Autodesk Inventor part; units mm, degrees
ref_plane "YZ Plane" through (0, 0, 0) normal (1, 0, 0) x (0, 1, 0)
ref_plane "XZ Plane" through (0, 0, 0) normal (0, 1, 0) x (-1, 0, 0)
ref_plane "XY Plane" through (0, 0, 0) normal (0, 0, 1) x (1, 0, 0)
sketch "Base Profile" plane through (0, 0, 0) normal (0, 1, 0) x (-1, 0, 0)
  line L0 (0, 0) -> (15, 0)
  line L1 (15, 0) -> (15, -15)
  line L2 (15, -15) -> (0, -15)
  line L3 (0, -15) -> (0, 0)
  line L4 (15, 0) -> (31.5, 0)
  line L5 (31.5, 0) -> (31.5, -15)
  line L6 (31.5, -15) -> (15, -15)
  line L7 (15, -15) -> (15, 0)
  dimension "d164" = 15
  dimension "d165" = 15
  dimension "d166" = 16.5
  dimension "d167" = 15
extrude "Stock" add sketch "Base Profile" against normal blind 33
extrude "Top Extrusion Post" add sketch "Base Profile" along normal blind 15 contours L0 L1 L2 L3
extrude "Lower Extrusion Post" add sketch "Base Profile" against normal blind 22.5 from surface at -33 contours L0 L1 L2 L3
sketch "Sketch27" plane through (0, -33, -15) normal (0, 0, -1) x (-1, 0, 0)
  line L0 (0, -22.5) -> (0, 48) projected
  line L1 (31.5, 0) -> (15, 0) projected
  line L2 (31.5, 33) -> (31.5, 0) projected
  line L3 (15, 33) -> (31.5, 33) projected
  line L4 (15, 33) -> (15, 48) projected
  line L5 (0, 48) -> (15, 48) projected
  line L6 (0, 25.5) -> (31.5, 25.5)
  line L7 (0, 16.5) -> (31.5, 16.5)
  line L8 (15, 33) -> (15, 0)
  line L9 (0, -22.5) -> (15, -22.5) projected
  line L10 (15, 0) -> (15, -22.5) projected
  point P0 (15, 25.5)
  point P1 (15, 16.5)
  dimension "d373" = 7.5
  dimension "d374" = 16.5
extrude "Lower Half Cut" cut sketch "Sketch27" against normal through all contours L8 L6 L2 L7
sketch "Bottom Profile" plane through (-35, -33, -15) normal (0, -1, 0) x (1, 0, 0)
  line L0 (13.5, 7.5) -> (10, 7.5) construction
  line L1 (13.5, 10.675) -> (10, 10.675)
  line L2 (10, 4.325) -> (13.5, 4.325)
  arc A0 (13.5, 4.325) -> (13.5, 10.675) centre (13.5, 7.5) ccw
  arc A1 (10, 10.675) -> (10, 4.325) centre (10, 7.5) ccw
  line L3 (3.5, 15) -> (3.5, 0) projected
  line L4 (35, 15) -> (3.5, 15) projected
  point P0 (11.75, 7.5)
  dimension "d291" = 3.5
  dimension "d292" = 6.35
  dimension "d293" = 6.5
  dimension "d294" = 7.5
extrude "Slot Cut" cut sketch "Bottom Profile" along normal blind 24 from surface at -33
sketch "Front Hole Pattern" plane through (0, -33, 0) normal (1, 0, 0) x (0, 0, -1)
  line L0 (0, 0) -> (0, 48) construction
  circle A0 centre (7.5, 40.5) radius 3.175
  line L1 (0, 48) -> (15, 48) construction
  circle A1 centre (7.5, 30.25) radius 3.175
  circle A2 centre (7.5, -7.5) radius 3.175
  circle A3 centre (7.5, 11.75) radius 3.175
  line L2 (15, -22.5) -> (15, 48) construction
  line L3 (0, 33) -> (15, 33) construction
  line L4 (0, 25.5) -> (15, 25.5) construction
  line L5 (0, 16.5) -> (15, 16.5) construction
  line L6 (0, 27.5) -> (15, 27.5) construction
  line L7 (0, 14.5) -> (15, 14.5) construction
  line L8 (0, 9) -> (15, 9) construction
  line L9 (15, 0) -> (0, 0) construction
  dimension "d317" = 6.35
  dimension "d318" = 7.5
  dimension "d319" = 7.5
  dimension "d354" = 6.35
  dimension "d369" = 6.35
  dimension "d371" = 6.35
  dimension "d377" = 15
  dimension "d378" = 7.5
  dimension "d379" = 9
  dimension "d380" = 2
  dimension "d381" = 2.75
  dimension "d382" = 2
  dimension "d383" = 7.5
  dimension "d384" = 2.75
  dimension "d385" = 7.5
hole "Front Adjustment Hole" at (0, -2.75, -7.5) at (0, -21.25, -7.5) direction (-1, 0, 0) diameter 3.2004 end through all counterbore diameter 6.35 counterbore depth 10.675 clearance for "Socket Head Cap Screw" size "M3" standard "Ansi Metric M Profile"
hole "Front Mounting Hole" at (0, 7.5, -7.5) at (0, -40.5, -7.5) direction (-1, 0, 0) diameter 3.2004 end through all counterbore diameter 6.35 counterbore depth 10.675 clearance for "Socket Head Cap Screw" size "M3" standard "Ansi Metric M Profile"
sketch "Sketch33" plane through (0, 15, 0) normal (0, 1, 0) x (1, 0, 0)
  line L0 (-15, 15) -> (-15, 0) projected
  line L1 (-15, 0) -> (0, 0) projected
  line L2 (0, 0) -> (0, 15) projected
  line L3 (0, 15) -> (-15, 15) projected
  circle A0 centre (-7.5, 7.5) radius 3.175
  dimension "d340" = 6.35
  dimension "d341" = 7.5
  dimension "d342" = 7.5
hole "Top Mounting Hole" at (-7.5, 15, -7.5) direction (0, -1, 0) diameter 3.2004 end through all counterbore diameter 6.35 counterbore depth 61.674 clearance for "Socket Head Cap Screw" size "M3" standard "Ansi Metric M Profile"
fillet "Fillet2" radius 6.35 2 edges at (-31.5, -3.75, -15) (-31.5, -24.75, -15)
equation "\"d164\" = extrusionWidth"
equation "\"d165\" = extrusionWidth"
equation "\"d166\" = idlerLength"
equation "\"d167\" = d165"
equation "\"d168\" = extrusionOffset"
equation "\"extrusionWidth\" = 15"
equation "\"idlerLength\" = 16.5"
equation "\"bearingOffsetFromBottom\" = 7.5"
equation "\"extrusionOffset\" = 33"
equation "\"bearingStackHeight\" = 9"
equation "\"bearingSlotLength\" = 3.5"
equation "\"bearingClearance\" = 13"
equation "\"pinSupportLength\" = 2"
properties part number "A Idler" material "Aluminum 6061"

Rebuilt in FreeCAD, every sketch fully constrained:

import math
import FreeCAD as App
import Part
import Sketcher
from FreeCAD import Vector


def edges_at(feature, points):
    """Names of the edges that pass closest to the given points."""
    edges = feature.Shape.Edges
    near = lambda p: min(range(len(edges)), key=lambda i: edges[i].distToShape(Part.Vertex(*p))[0])
    return sorted({f"Edge{near(p) + 1}" for p in points})

doc = App.newDocument("Part")
body = doc.addObject("PartDesign::Body", "Body")

# Sketch on XZ plane
sketch1 = doc.addObject("Sketcher::SketchObject", "Sketch")
body.addObject(sketch1)
sketch1.AttachmentSupport = (doc.XZ_Plane, [""])
sketch1.MapMode = "FlatFace"
sketch1.addGeometry([
    Part.LineSegment(Vector(0, 0, 0), Vector(0, -15, 0)),
    Part.LineSegment(Vector(0, -15, 0), Vector(-32, -15, 0)),
    Part.LineSegment(Vector(-32, -15, 0), Vector(-32, 0, 0)),
    Part.LineSegment(Vector(-32, 0, 0), Vector(0, 0, 0)),
], False)
sketch1.addConstraint([
    Sketcher.Constraint("Coincident", 0, 2, 1, 1),
    Sketcher.Constraint("Coincident", 1, 2, 2, 1),
    Sketcher.Constraint("Coincident", 2, 2, 3, 1),
    Sketcher.Constraint("Coincident", 3, 2, 0, 1),
    Sketcher.Constraint("Vertical", 0),
    Sketcher.Constraint("Horizontal", 1),
    Sketcher.Constraint("Vertical", 2),
    Sketcher.Constraint("Horizontal", 3),
    Sketcher.Constraint("Coincident", 3, 2, -1, 1),
    Sketcher.Constraint("DistanceY", 0, 2, 0, 1, 15.0),
    Sketcher.Constraint("DistanceX", 1, 2, 1, 1, 31.5),
])
pad1 = doc.addObject("PartDesign::Pad", "Pad")
body.addObject(pad1)
pad1.Profile = sketch1
pad1.Length = 33

# Sketch on XZ plane
sketch2 = doc.addObject("Sketcher::SketchObject", "Sketch001")
body.addObject(sketch2)
sketch2.AttachmentSupport = (doc.XZ_Plane, [""])
sketch2.MapMode = "FlatFace"
sketch2.addGeometry([
    Part.LineSegment(Vector(-15, 0, 0), Vector(0, 0, 0)),
    Part.LineSegment(Vector(0, 0, 0), Vector(0, -15, 0)),
    Part.LineSegment(Vector(0, -15, 0), Vector(-15, -15, 0)),
    Part.LineSegment(Vector(-15, -15, 0), Vector(-15, 0, 0)),
], False)
sketch2.addConstraint([
    Sketcher.Constraint("Coincident", 0, 2, 1, 1),
    Sketcher.Constraint("Coincident", 1, 2, 2, 1),
    Sketcher.Constraint("Coincident", 2, 2, 3, 1),
    Sketcher.Constraint("Coincident", 3, 2, 0, 1),
    Sketcher.Constraint("Horizontal", 0),
    Sketcher.Constraint("Vertical", 1),
    Sketcher.Constraint("Horizontal", 2),
    Sketcher.Constraint("Vertical", 3),
    Sketcher.Constraint("Coincident", 0, 2, -1, 1),
    Sketcher.Constraint("Equal", 2, 1),
    Sketcher.Constraint("DistanceX", 0, 1, 0, 2, 15.0),
])
pad2 = doc.addObject("PartDesign::Pad", "Pad001")
body.addObject(pad2)
pad2.Profile = sketch2
pad2.Length = 15
pad2.Reversed = True

# Sketch on XZ plane
sketch3 = doc.addObject("Sketcher::SketchObject", "Sketch002")
body.addObject(sketch3)
sketch3.AttachmentSupport = (doc.XZ_Plane, [""])
sketch3.MapMode = "FlatFace"
sketch3.AttachmentOffset = App.Placement(Vector(0, 0, 33), App.Rotation())
sketch3.addGeometry([
    Part.LineSegment(Vector(-15, 0, 0), Vector(0, 0, 0)),
    Part.LineSegment(Vector(0, 0, 0), Vector(0, -15, 0)),
    Part.LineSegment(Vector(0, -15, 0), Vector(-15, -15, 0)),
    Part.LineSegment(Vector(-15, -15, 0), Vector(-15, 0, 0)),
], False)
sketch3.addConstraint([
    Sketcher.Constraint("Coincident", 0, 2, 1, 1),
    Sketcher.Constraint("Coincident", 1, 2, 2, 1),
    Sketcher.Constraint("Coincident", 2, 2, 3, 1),
    Sketcher.Constraint("Coincident", 3, 2, 0, 1),
    Sketcher.Constraint("Horizontal", 0),
    Sketcher.Constraint("Vertical", 1),
    Sketcher.Constraint("Horizontal", 2),
    Sketcher.Constraint("Vertical", 3),
    Sketcher.Constraint("Coincident", 0, 2, -1, 1),
    Sketcher.Constraint("Equal", 2, 1),
    Sketcher.Constraint("DistanceX", 0, 1, 0, 2, 15.0),
])
pad3 = doc.addObject("PartDesign::Pad", "Pad002")
body.addObject(pad3)
pad3.Profile = sketch3
pad3.Length = 22.5

# Sketch on XY plane
sketch4 = doc.addObject("Sketcher::SketchObject", "Sketch003")
body.addObject(sketch4)
sketch4.AttachmentSupport = (doc.XY_Plane, [""])
sketch4.MapMode = "FlatFace"
sketch4.AttachmentOffset = App.Placement(Vector(0, 0, -15), App.Rotation())
sketch4.addGeometry([
    Part.LineSegment(Vector(-15, -8, 0), Vector(-15, -16, 0)),
    Part.LineSegment(Vector(-15, -16, 0), Vector(-32, -16, 0)),
    Part.LineSegment(Vector(-32, -16, 0), Vector(-32, -8, 0)),
    Part.LineSegment(Vector(-32, -8, 0), Vector(-15, -8, 0)),
], False)
sketch4.addConstraint([
    Sketcher.Constraint("Coincident", 0, 2, 1, 1),
    Sketcher.Constraint("Coincident", 1, 2, 2, 1),
    Sketcher.Constraint("Coincident", 2, 2, 3, 1),
    Sketcher.Constraint("Coincident", 3, 2, 0, 1),
    Sketcher.Constraint("Vertical", 0),
    Sketcher.Constraint("Horizontal", 1),
    Sketcher.Constraint("Vertical", 2),
    Sketcher.Constraint("Horizontal", 3),
    Sketcher.Constraint("DistanceX", 1, 2, 1, 1, 16.5),
    Sketcher.Constraint("DistanceY", 0, 2, -1, 1, 16.5),
    Sketcher.Constraint("DistanceY", 2, 2, -1, 1, 7.5),
    Sketcher.Constraint("DistanceX", 0, 2, -1, 1, 15.0),
])
pocket1 = doc.addObject("PartDesign::Pocket", "Pocket")
body.addObject(pocket1)
pocket1.Profile = sketch4
pocket1.Type = "ThroughAll"
pocket1.Reversed = True

# Sketch on XZ plane
sketch5 = doc.addObject("Sketcher::SketchObject", "Sketch004")
body.addObject(sketch5)
sketch5.AttachmentSupport = (doc.XZ_Plane, [""])
sketch5.MapMode = "FlatFace"
sketch5.addGeometry([
    Part.ArcOfCircle(Part.Circle(Vector(-21.5, -7.5, 0), Vector(0, 0, 1), 3.2), math.radians(-90), math.radians(90)),
    Part.LineSegment(Vector(-21.5, -4.3, 0), Vector(-25, -4.3, 0)),
    Part.ArcOfCircle(Part.Circle(Vector(-25, -7.5, 0), Vector(0, 0, 1), 3.2), math.radians(90), math.radians(270)),
    Part.LineSegment(Vector(-25, -10.7, 0), Vector(-21.5, -10.7, 0)),
], False)
sketch5.addConstraint([
    Sketcher.Constraint("Tangent", 0, 2, 1, 1),
    Sketcher.Constraint("Tangent", 1, 2, 2, 1),
    Sketcher.Constraint("Tangent", 2, 2, 3, 1),
    Sketcher.Constraint("Tangent", 3, 2, 0, 1),
    Sketcher.Constraint("Horizontal", 1),
    Sketcher.Constraint("Horizontal", 3),
    Sketcher.Constraint("DistanceX", 1, 2, 1, 1, 3.5),
    Sketcher.Constraint("Radius", 0, 3.175),
    Sketcher.Constraint("DistanceY", 0, 3, -1, 1, 7.5),
    Sketcher.Constraint("DistanceX", 2, 3, -1, 1, 25.0),
])
pocket2 = doc.addObject("PartDesign::Pocket", "Pocket001")
body.addObject(pocket2)
pocket2.Profile = sketch5
pocket2.Length = 24
pocket2.Reversed = True

# Sketch on YZ plane
sketch6 = doc.addObject("Sketcher::SketchObject", "Sketch005")
body.addObject(sketch6)
sketch6.AttachmentSupport = (doc.YZ_Plane, [""])
sketch6.MapMode = "FlatFace"
sketch6.addGeometry([
    Part.Circle(Vector(-2.8, -7.5, 0), Vector(0, 0, 1), 1.6),
    Part.Circle(Vector(-21.2, -7.5, 0), Vector(0, 0, 1), 1.6),
], False)
sketch6.addConstraint([
    Sketcher.Constraint("Equal", 0, 1),
    Sketcher.Constraint("Horizontal", 0, 3, 1, 3),
    Sketcher.Constraint("Diameter", 0, 3.2004),
    Sketcher.Constraint("DistanceY", 0, 3, -1, 1, 7.5),
    Sketcher.Constraint("DistanceX", 1, 3, 0, 3, 18.5),
    Sketcher.Constraint("DistanceX", 0, 3, -1, 1, 2.75),
])
doc.recompute()
hole = doc.addObject("PartDesign::Hole", "Hole")
body.addObject(hole)
hole.Profile = sketch6
hole.ThreadType = "None"
hole.Diameter = 3.2004
hole.DepthType = "ThroughAll"
hole.HoleCutType = "Counterbore"
hole.HoleCutDiameter = 6.35
hole.HoleCutDepth = 10.675

# Sketch on YZ plane
sketch7 = doc.addObject("Sketcher::SketchObject", "Sketch006")
body.addObject(sketch7)
sketch7.AttachmentSupport = (doc.YZ_Plane, [""])
sketch7.MapMode = "FlatFace"
sketch7.addGeometry([
    Part.Circle(Vector(7.5, -7.5, 0), Vector(0, 0, 1), 1.6),
    Part.Circle(Vector(-40.5, -7.5, 0), Vector(0, 0, 1), 1.6),
], False)
sketch7.addConstraint([
    Sketcher.Constraint("Equal", 0, 1),
    Sketcher.Constraint("Horizontal", 0, 3, 1, 3),
    Sketcher.Constraint("DistanceX", 1, 3, 0, 3, 48.0),
    Sketcher.Constraint("Diameter", 0, 3.2004),
    Sketcher.Constraint("DistanceX", -1, 1, 0, 3, 7.5),
    Sketcher.Constraint("DistanceY", 0, 3, -1, 1, 7.5),
])
doc.recompute()
hole2 = doc.addObject("PartDesign::Hole", "Hole001")
body.addObject(hole2)
hole2.Profile = sketch7
hole2.ThreadType = "None"
hole2.Diameter = 3.2004
hole2.DepthType = "ThroughAll"
hole2.HoleCutType = "Counterbore"
hole2.HoleCutDiameter = 6.35
hole2.HoleCutDepth = 10.675

# Sketch on XZ plane
sketch8 = doc.addObject("Sketcher::SketchObject", "Sketch007")
body.addObject(sketch8)
sketch8.AttachmentSupport = (doc.XZ_Plane, [""])
sketch8.MapMode = "FlatFace"
sketch8.AttachmentOffset = App.Placement(Vector(0, 0, -15), App.Rotation())
sketch8.addGeometry(Part.Circle(Vector(-7.5, -7.5, 0), Vector(0, 0, 1), 1.6), False)
sketch8.addConstraint([
    Sketcher.Constraint("Diameter", 0, 3.2004),
    Sketcher.Constraint("DistanceX", 0, 3, -1, 1, 7.5),
    Sketcher.Constraint("DistanceY", 0, 3, -1, 1, 7.5),
])
doc.recompute()
hole3 = doc.addObject("PartDesign::Hole", "Hole002")
body.addObject(hole3)
hole3.Profile = sketch8
hole3.ThreadType = "None"
hole3.Diameter = 3.2004
hole3.DepthType = "ThroughAll"
hole3.HoleCutType = "Counterbore"
hole3.HoleCutDiameter = 6.35
hole3.HoleCutDepth = 61.674
hole3.Reversed = True
doc.recompute()

fillet = doc.addObject("PartDesign::Fillet", "Fillet")
body.addObject(fillet)
fillet.Base = (hole3, edges_at(hole3, [(-31.5, -3.75, -15), (-31.5, -24.75, -15)]))
fillet.Radius = 6.35

doc.recompute()
